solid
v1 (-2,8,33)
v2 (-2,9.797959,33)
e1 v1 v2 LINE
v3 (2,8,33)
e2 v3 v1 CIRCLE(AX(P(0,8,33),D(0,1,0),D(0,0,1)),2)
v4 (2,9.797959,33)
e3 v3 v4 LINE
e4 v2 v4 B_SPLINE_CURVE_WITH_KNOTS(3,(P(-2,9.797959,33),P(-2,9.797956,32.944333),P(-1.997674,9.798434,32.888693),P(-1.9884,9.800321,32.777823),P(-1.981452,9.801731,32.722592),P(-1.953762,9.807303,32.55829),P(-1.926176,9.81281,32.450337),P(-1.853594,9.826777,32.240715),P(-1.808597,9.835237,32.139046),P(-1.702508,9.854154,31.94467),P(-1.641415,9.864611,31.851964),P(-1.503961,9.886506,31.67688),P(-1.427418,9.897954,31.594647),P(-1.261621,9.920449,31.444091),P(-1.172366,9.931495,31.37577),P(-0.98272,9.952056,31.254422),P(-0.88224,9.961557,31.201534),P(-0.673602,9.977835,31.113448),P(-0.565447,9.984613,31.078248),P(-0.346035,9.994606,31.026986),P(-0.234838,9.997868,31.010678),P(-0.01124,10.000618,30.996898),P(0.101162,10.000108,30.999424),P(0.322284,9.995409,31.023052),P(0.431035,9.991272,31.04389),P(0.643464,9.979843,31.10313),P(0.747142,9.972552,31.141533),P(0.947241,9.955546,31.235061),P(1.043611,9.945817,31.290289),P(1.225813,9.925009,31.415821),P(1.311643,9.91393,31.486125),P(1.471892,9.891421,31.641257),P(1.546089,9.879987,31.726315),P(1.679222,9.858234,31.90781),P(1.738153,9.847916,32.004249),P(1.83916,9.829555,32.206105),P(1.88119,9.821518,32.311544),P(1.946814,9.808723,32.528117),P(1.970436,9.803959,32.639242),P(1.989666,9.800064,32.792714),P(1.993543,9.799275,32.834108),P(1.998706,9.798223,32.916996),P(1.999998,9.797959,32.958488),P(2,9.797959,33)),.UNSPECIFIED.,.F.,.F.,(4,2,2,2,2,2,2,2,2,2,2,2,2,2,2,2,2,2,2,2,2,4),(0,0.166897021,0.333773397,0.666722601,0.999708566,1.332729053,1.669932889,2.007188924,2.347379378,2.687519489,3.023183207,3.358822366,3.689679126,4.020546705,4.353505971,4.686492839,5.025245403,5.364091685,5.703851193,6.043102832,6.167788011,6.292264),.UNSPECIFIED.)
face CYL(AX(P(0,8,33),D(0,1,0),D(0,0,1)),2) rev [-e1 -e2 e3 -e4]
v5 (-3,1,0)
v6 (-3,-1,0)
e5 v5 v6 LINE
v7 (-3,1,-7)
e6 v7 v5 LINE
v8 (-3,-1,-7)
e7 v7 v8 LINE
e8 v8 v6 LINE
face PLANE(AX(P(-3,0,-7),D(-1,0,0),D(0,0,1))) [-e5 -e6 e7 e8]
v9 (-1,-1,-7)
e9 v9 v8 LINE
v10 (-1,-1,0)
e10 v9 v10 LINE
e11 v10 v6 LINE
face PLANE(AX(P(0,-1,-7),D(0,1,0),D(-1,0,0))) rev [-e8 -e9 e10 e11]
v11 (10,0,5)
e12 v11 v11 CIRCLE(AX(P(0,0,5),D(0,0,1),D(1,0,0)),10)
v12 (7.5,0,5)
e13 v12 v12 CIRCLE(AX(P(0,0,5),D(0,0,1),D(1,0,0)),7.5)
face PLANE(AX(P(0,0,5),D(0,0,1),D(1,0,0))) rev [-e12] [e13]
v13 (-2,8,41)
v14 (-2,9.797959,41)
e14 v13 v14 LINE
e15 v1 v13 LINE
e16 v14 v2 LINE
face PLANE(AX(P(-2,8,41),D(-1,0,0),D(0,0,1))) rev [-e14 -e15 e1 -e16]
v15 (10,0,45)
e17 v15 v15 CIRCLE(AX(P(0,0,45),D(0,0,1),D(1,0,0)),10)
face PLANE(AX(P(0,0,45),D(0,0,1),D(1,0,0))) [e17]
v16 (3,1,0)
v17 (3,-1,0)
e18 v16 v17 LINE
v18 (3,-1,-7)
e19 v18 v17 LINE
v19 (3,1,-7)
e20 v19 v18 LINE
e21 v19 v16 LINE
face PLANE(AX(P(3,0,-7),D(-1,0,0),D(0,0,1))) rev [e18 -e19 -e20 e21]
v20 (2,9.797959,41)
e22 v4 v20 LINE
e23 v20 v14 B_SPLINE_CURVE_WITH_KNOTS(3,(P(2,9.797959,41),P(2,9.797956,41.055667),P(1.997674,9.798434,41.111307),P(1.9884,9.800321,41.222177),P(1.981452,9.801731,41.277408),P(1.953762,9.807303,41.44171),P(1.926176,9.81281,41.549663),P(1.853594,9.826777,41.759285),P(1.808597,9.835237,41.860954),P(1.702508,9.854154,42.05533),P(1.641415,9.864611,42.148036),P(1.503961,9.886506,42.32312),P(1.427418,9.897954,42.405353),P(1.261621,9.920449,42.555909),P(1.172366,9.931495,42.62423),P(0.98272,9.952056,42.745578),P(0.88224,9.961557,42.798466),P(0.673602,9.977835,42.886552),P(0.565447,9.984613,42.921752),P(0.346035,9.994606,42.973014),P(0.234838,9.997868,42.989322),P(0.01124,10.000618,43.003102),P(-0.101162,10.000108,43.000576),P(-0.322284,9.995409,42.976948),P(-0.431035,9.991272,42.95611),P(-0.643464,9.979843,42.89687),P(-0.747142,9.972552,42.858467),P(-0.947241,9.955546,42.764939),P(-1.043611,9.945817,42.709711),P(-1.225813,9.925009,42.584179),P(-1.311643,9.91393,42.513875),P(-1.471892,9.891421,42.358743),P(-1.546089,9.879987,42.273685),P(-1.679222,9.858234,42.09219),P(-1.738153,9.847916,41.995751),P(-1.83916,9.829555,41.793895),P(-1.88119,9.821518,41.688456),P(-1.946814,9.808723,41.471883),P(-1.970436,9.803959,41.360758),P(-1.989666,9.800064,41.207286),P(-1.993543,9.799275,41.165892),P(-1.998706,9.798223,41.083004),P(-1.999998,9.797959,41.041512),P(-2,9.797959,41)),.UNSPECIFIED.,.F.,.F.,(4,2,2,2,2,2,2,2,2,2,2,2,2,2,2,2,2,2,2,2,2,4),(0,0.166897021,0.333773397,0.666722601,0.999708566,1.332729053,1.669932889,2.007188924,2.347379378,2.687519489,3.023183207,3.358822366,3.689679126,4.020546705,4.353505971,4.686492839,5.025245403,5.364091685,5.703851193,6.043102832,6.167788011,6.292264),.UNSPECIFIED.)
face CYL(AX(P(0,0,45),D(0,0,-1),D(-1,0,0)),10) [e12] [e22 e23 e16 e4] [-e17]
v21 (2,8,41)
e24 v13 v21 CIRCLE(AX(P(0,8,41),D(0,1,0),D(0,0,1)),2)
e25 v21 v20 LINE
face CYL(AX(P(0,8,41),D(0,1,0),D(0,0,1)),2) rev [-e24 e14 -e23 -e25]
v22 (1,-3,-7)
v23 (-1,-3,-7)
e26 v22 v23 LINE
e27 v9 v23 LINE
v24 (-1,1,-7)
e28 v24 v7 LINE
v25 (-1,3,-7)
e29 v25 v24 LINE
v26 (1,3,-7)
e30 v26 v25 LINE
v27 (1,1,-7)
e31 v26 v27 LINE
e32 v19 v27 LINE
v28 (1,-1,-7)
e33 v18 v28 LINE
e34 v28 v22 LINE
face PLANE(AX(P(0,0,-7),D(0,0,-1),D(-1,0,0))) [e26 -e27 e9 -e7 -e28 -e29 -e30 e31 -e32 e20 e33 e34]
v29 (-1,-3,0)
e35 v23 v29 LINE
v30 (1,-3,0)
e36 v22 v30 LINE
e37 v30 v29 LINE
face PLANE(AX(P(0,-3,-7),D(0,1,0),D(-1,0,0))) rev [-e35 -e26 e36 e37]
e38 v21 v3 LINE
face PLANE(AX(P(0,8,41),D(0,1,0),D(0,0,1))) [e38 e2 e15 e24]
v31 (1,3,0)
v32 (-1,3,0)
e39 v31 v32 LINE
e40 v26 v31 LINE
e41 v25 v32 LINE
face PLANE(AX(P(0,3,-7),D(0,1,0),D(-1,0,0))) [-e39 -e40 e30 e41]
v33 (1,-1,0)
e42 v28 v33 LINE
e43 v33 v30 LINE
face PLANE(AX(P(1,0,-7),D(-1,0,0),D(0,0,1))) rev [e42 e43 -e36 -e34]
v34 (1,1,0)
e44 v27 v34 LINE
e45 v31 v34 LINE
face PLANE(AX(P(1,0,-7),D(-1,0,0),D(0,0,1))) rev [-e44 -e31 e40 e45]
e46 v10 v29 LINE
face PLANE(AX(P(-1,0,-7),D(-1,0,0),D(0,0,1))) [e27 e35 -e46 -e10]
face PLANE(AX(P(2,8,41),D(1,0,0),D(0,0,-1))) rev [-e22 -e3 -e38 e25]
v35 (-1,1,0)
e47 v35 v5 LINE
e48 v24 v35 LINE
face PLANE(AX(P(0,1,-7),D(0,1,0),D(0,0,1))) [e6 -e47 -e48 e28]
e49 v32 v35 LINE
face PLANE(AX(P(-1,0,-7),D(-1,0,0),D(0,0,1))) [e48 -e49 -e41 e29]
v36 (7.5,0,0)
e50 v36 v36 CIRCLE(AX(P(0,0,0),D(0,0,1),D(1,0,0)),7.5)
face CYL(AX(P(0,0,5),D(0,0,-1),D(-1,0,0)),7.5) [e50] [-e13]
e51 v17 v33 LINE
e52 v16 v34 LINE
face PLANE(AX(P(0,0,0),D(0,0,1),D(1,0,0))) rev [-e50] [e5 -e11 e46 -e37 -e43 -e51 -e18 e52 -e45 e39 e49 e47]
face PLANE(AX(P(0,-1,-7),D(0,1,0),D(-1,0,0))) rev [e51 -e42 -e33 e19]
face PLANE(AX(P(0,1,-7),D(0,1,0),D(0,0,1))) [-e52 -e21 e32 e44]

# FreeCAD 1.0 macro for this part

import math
import FreeCAD as App
import Part
import Sketcher

V = App.Vector

doc = App.newDocument("Part")
body = doc.addObject("PartDesign::Body", "Body")

# Sketch on XY plane
sketch1 = doc.addObject("Sketcher::SketchObject", "Sketch")
body.addObject(sketch1)
sketch1.AttachmentSupport = (doc.XY_Plane, [""])
sketch1.MapMode = "FlatFace"
sketch1.addGeometry(Part.Circle(V(0, 0, 0), V(0, 0, 1), 7.5), False)
sketch1.addConstraint([
    Sketcher.Constraint("Coincident", 0, 3, -1, 1),
    Sketcher.Constraint("Diameter", 0, 15.0),
])
pad1 = doc.addObject("PartDesign::Pad", "Pad")
body.addObject(pad1)
pad1.Profile = sketch1
pad1.Length = 5

# Sketch on XY plane
sketch2 = doc.addObject("Sketcher::SketchObject", "Sketch001")
body.addObject(sketch2)
sketch2.AttachmentSupport = (doc.XY_Plane, [""])
sketch2.MapMode = "FlatFace"
sketch2.addGeometry([
    Part.LineSegment(V(3, 1, 0), V(3, -1, 0)),  # 0
    Part.LineSegment(V(3, -1, 0), V(1, -1, 0)),  # 1
    Part.LineSegment(V(1, -1, 0), V(1, -3, 0)),  # 2
    Part.LineSegment(V(1, -3, 0), V(-1, -3, 0)),  # 3
    Part.LineSegment(V(-1, -3, 0), V(-1, -1, 0)),  # 4
    Part.LineSegment(V(-1, -1, 0), V(-3, -1, 0)),  # 5
    Part.LineSegment(V(-3, -1, 0), V(-3, 1, 0)),  # 6
    Part.LineSegment(V(-3, 1, 0), V(-1, 1, 0)),  # 7
    Part.LineSegment(V(-1, 1, 0), V(-1, 3, 0)),  # 8
    Part.LineSegment(V(-1, 3, 0), V(1, 3, 0)),  # 9
    Part.LineSegment(V(1, 3, 0), V(1, 1, 0)),  # 10
    Part.LineSegment(V(1, 1, 0), V(3, 1, 0)),  # 11
], False)
sketch2.addConstraint([
    Sketcher.Constraint("Coincident", 0, 2, 1, 1),
    Sketcher.Constraint("Coincident", 1, 2, 2, 1),
    Sketcher.Constraint("Coincident", 2, 2, 3, 1),
    Sketcher.Constraint("Coincident", 3, 2, 4, 1),
    Sketcher.Constraint("Coincident", 4, 2, 5, 1),
    Sketcher.Constraint("Coincident", 5, 2, 6, 1),
    Sketcher.Constraint("Coincident", 6, 2, 7, 1),
    Sketcher.Constraint("Coincident", 7, 2, 8, 1),
    Sketcher.Constraint("Coincident", 8, 2, 9, 1),
    Sketcher.Constraint("Coincident", 9, 2, 10, 1),
    Sketcher.Constraint("Coincident", 10, 2, 11, 1),
    Sketcher.Constraint("Coincident", 11, 2, 0, 1),
    Sketcher.Constraint("Vertical", 0),
    Sketcher.Constraint("Horizontal", 1),
    Sketcher.Constraint("Vertical", 2),
    Sketcher.Constraint("Horizontal", 3),
    Sketcher.Constraint("Vertical", 4),
    Sketcher.Constraint("Horizontal", 5),
    Sketcher.Constraint("Vertical", 6),
    Sketcher.Constraint("Horizontal", 7),
    Sketcher.Constraint("Vertical", 8),
    Sketcher.Constraint("Horizontal", 9),
    Sketcher.Constraint("Vertical", 10),
    Sketcher.Constraint("Horizontal", 11),
    Sketcher.Constraint("Symmetric", 0, 2, 6, 2, -1, 1),
    Sketcher.Constraint("Symmetric", 2, 2, 8, 2, -1, 1),
    Sketcher.Constraint("Symmetric", 4, 2, 10, 2, -1, 1),
    Sketcher.Constraint("Symmetric", 1, 2, 4, 2, -2),
    Sketcher.Constraint("Equal", 1, 3),
    Sketcher.Constraint("Equal", 11, 0),
    Sketcher.Constraint("Equal", 0, 2),
    Sketcher.Constraint("DistanceX", 1, 2, 1, 1, 2.0),
])
pad2 = doc.addObject("PartDesign::Pad", "Pad001")
body.addObject(pad2)
pad2.Profile = sketch2
pad2.Length = 7
pad2.Reversed = True

# Sketch on XY plane
sketch3 = doc.addObject("Sketcher::SketchObject", "Sketch002")
body.addObject(sketch3)
sketch3.AttachmentSupport = (doc.XY_Plane, [""])
sketch3.MapMode = "FlatFace"
sketch3.AttachmentOffset = App.Placement(V(0, 0, 5), App.Rotation())
sketch3.addGeometry(Part.Circle(V(0, 0, 0), V(0, 0, 1), 10), False)
sketch3.addConstraint([
    Sketcher.Constraint("Coincident", 0, 3, -1, 1),
    Sketcher.Constraint("Diameter", 0, 20.0),
])
pad3 = doc.addObject("PartDesign::Pad", "Pad002")
body.addObject(pad3)
pad3.Profile = sketch3
pad3.Length = 40

# Sketch on XZ plane
sketch4 = doc.addObject("Sketcher::SketchObject", "Sketch003")
body.addObject(sketch4)
sketch4.AttachmentSupport = (doc.XZ_Plane, [""])
sketch4.MapMode = "FlatFace"
sketch4.AttachmentOffset = App.Placement(V(0, 0, -10), App.Rotation())
sketch4.addGeometry([
    Part.LineSegment(V(-2, 33, 0), V(-2, 41, 0)),
    Part.ArcOfCircle(Part.Circle(V(0, 41, 0), V(0, 0, 1), 2), math.radians(0), math.radians(180)),
    Part.LineSegment(V(2, 41, 0), V(2, 33, 0)),
    Part.ArcOfCircle(Part.Circle(V(0, 33, 0), V(0, 0, 1), 2), math.radians(180), math.radians(360)),
], False)
sketch4.addConstraint([
    Sketcher.Constraint("Tangent", 0, 2, 1, 2),
    Sketcher.Constraint("Tangent", 1, 1, 2, 1),
    Sketcher.Constraint("Tangent", 2, 2, 3, 2),
    Sketcher.Constraint("Tangent", 3, 1, 0, 1),
    Sketcher.Constraint("Vertical", 0),
    Sketcher.Constraint("Vertical", 2),
    Sketcher.Constraint("PointOnObject", 1, 3, -2),
    Sketcher.Constraint("Radius", 1, 2.0),
    Sketcher.Constraint("DistanceY", 0, 1, 0, 2, 8.0),
    Sketcher.Constraint("DistanceY", -1, 1, 1, 3, 41.0),
])
pocket1 = doc.addObject("PartDesign::Pocket", "Pocket")
body.addObject(pocket1)
pocket1.Profile = sketch4
pocket1.Length = 2
pocket1.Reversed = True

doc.recompute()
